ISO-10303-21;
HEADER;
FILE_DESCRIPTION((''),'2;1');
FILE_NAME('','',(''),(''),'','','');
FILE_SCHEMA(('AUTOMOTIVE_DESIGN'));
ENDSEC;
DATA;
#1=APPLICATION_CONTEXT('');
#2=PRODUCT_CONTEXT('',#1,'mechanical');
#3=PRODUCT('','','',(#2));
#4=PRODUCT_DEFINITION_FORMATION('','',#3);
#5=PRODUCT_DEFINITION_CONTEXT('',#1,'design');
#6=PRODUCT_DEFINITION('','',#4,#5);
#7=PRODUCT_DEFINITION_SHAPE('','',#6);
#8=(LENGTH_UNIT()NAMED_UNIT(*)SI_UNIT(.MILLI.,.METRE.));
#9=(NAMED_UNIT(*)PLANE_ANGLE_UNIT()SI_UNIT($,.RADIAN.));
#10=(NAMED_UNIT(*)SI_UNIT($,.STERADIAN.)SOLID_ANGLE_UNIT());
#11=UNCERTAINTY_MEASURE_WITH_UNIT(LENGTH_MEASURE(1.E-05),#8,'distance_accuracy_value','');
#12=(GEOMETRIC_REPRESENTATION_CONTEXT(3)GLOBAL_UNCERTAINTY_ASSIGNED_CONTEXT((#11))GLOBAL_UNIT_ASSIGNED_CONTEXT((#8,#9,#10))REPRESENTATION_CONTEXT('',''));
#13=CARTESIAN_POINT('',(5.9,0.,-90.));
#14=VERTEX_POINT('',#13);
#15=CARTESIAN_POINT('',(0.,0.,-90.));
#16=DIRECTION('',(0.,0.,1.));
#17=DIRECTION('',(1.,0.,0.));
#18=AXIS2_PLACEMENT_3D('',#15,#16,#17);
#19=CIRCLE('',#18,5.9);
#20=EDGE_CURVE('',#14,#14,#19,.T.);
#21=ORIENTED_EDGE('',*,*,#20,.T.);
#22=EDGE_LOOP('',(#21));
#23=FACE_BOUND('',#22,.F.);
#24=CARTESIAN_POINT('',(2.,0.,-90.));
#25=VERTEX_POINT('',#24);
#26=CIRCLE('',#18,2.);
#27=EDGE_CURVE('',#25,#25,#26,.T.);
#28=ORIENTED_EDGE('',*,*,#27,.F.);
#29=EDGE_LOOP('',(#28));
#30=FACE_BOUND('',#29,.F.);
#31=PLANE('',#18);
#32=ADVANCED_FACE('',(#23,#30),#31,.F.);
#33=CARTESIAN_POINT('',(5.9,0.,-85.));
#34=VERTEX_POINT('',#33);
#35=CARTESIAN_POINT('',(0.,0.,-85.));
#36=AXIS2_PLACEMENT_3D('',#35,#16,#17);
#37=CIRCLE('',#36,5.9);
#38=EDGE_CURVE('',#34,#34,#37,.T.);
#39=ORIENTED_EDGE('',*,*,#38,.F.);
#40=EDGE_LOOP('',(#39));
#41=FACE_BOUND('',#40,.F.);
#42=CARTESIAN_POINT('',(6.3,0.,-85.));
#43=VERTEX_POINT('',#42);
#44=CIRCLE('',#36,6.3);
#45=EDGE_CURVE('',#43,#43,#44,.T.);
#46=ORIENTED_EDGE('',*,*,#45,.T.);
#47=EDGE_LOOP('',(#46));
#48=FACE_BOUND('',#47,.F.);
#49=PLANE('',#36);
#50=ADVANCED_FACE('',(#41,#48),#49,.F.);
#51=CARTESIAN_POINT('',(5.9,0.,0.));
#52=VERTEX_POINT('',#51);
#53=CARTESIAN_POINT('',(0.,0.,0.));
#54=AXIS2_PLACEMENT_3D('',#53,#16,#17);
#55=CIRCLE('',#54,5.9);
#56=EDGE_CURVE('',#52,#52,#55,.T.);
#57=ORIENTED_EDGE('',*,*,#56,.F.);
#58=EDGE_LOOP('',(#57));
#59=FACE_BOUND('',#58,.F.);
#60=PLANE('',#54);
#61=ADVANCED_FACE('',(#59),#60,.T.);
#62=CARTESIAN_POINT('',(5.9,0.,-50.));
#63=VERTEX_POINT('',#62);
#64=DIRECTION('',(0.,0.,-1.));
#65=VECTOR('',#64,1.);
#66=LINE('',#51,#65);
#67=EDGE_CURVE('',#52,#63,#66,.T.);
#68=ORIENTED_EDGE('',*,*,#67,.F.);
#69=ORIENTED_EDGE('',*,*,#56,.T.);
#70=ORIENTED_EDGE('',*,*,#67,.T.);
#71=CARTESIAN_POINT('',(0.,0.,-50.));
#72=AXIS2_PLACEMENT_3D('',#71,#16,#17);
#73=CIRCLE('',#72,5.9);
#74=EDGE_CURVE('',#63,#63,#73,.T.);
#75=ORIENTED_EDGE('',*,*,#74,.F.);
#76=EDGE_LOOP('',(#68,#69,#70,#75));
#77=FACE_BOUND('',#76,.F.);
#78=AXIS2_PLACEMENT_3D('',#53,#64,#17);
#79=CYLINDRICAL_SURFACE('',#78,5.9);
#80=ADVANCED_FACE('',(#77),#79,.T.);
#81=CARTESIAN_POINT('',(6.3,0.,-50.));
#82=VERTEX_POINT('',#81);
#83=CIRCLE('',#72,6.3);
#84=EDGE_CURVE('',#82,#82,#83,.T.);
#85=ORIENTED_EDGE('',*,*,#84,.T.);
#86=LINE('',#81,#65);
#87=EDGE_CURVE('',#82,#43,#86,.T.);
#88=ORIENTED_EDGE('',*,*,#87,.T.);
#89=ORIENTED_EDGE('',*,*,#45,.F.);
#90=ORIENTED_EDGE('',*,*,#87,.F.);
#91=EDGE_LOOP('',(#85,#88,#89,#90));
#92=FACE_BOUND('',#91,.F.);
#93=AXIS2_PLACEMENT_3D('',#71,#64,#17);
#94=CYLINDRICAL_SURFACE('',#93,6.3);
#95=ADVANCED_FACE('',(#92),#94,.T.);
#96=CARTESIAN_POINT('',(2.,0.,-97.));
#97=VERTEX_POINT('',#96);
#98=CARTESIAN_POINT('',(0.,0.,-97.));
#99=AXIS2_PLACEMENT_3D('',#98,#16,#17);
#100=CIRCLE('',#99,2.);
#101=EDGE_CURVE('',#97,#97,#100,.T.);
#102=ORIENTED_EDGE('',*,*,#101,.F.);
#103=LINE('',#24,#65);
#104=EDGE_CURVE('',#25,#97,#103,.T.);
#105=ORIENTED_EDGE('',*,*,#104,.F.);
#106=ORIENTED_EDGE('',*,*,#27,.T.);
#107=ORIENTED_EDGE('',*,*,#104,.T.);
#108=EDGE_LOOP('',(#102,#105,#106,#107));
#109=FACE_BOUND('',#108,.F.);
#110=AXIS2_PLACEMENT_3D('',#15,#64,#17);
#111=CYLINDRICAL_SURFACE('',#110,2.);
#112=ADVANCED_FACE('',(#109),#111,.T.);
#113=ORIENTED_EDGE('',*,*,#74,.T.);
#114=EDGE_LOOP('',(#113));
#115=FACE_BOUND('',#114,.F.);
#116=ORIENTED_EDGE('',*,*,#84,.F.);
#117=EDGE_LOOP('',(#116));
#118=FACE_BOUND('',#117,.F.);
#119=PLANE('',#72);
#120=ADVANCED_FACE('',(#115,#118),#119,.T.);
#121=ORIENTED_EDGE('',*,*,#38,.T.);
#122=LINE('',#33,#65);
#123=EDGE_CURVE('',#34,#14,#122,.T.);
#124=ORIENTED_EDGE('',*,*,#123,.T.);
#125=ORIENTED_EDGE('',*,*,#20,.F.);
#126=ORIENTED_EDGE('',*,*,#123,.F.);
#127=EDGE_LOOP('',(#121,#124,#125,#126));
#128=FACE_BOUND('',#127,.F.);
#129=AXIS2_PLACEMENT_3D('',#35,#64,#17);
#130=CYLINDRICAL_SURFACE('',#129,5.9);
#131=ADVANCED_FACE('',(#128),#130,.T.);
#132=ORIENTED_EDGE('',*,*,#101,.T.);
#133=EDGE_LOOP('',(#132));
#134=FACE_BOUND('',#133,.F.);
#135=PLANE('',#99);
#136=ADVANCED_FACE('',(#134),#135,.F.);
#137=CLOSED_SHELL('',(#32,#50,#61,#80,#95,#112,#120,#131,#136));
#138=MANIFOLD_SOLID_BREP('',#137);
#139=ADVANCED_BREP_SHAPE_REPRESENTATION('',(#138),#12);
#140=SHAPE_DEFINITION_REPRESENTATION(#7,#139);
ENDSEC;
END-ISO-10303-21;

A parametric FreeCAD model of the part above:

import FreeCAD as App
import Part
import Sketcher
from FreeCAD import Vector


def add_polygon(sketch, points):
    """Adds a closed chain of lines whose ends are joined by coincident constraints."""
    first, n = sketch.GeometryCount, len(points)
    for a, b in zip(points, points[1:] + points[:1]):
        sketch.addGeometry(Part.LineSegment(App.Vector(*a, 0), App.Vector(*b, 0)), False)
    for i in range(n):
        sketch.addConstraint(Sketcher.Constraint("Coincident", first + i, 2, first + (i + 1) % n, 1))

doc = App.newDocument("Part")
params = doc.addObject("Spreadsheet::Sheet", "Params")
for row, (alias, value) in enumerate([
    ("sketch1_width", "2 mm"),
    ("sketch1_height", "50 mm"),
    ("sketch1_height2", "35 mm"),
    ("sketch1_height3", "5 mm"),
    ("sketch1_height4", "7 mm"),
    ("revolution_angle", "360 deg"),
], start=1):
    params.set(f"A{row}", alias)
    params.set(f"B{row}", "=" + value)
    params.setAlias(f"B{row}", alias)

body = doc.addObject("PartDesign::Body", "Body")

# Sketch on XZ plane
sketch1 = body.newObject("Sketcher::SketchObject", "Sketch")
sketch1.AttachmentSupport = (doc.getObject("XZ_Plane"), [""])
sketch1.MapMode = "FlatFace"
add_polygon(sketch1, [(0, -97), (0, 0), (5.9, 0), (5.9, -50), (6.3, -50), (6.3, -85), (5.9, -85), (5.9, -90), (2, -90), (2, -97)])  # lines 0-9
sketch1.addConstraint([
    Sketcher.Constraint("Vertical", 0),
    Sketcher.Constraint("Horizontal", 1),
    Sketcher.Constraint("Vertical", 2),
    Sketcher.Constraint("Horizontal", 3),
    Sketcher.Constraint("Vertical", 4),
    Sketcher.Constraint("Horizontal", 5),
    Sketcher.Constraint("Vertical", 6),
    Sketcher.Constraint("Horizontal", 7),
    Sketcher.Constraint("Vertical", 8),
    Sketcher.Constraint("Horizontal", 9),
    Sketcher.Constraint("Coincident", 0, 2, -1, 1),
    Sketcher.Constraint("Vertical", 2, 2, 5, 2),
    Sketcher.Constraint("DistanceX", 9, 2, 9, 1, 2.0),
    Sketcher.Constraint("DistanceY", 2, 2, 2, 1, 50.0),
    Sketcher.Constraint("DistanceY", 4, 2, 4, 1, 35.0),
    Sketcher.Constraint("DistanceY", 6, 2, 6, 1, 5.0),
    Sketcher.Constraint("DistanceY", 8, 2, 8, 1, 7.0),
    Sketcher.Constraint("DistanceX", 1, 1, 1, 2, 5.9),
    Sketcher.Constraint("DistanceX", -1, 1, 3, 2, 6.3),
])
sketch1.setExpression("Constraints[22]", "Params.sketch1_width")
sketch1.setExpression("Constraints[23]", "Params.sketch1_height")
sketch1.setExpression("Constraints[24]", "Params.sketch1_height2")
sketch1.setExpression("Constraints[25]", "Params.sketch1_height3")
sketch1.setExpression("Constraints[26]", "Params.sketch1_height4")
revolution = body.newObject("PartDesign::Revolution", "Revolution")
revolution.Profile = sketch1
revolution.ReferenceAxis = (sketch1, ["V_Axis"])
revolution.setExpression("Angle", "Params.revolution_angle")

doc.recompute()
